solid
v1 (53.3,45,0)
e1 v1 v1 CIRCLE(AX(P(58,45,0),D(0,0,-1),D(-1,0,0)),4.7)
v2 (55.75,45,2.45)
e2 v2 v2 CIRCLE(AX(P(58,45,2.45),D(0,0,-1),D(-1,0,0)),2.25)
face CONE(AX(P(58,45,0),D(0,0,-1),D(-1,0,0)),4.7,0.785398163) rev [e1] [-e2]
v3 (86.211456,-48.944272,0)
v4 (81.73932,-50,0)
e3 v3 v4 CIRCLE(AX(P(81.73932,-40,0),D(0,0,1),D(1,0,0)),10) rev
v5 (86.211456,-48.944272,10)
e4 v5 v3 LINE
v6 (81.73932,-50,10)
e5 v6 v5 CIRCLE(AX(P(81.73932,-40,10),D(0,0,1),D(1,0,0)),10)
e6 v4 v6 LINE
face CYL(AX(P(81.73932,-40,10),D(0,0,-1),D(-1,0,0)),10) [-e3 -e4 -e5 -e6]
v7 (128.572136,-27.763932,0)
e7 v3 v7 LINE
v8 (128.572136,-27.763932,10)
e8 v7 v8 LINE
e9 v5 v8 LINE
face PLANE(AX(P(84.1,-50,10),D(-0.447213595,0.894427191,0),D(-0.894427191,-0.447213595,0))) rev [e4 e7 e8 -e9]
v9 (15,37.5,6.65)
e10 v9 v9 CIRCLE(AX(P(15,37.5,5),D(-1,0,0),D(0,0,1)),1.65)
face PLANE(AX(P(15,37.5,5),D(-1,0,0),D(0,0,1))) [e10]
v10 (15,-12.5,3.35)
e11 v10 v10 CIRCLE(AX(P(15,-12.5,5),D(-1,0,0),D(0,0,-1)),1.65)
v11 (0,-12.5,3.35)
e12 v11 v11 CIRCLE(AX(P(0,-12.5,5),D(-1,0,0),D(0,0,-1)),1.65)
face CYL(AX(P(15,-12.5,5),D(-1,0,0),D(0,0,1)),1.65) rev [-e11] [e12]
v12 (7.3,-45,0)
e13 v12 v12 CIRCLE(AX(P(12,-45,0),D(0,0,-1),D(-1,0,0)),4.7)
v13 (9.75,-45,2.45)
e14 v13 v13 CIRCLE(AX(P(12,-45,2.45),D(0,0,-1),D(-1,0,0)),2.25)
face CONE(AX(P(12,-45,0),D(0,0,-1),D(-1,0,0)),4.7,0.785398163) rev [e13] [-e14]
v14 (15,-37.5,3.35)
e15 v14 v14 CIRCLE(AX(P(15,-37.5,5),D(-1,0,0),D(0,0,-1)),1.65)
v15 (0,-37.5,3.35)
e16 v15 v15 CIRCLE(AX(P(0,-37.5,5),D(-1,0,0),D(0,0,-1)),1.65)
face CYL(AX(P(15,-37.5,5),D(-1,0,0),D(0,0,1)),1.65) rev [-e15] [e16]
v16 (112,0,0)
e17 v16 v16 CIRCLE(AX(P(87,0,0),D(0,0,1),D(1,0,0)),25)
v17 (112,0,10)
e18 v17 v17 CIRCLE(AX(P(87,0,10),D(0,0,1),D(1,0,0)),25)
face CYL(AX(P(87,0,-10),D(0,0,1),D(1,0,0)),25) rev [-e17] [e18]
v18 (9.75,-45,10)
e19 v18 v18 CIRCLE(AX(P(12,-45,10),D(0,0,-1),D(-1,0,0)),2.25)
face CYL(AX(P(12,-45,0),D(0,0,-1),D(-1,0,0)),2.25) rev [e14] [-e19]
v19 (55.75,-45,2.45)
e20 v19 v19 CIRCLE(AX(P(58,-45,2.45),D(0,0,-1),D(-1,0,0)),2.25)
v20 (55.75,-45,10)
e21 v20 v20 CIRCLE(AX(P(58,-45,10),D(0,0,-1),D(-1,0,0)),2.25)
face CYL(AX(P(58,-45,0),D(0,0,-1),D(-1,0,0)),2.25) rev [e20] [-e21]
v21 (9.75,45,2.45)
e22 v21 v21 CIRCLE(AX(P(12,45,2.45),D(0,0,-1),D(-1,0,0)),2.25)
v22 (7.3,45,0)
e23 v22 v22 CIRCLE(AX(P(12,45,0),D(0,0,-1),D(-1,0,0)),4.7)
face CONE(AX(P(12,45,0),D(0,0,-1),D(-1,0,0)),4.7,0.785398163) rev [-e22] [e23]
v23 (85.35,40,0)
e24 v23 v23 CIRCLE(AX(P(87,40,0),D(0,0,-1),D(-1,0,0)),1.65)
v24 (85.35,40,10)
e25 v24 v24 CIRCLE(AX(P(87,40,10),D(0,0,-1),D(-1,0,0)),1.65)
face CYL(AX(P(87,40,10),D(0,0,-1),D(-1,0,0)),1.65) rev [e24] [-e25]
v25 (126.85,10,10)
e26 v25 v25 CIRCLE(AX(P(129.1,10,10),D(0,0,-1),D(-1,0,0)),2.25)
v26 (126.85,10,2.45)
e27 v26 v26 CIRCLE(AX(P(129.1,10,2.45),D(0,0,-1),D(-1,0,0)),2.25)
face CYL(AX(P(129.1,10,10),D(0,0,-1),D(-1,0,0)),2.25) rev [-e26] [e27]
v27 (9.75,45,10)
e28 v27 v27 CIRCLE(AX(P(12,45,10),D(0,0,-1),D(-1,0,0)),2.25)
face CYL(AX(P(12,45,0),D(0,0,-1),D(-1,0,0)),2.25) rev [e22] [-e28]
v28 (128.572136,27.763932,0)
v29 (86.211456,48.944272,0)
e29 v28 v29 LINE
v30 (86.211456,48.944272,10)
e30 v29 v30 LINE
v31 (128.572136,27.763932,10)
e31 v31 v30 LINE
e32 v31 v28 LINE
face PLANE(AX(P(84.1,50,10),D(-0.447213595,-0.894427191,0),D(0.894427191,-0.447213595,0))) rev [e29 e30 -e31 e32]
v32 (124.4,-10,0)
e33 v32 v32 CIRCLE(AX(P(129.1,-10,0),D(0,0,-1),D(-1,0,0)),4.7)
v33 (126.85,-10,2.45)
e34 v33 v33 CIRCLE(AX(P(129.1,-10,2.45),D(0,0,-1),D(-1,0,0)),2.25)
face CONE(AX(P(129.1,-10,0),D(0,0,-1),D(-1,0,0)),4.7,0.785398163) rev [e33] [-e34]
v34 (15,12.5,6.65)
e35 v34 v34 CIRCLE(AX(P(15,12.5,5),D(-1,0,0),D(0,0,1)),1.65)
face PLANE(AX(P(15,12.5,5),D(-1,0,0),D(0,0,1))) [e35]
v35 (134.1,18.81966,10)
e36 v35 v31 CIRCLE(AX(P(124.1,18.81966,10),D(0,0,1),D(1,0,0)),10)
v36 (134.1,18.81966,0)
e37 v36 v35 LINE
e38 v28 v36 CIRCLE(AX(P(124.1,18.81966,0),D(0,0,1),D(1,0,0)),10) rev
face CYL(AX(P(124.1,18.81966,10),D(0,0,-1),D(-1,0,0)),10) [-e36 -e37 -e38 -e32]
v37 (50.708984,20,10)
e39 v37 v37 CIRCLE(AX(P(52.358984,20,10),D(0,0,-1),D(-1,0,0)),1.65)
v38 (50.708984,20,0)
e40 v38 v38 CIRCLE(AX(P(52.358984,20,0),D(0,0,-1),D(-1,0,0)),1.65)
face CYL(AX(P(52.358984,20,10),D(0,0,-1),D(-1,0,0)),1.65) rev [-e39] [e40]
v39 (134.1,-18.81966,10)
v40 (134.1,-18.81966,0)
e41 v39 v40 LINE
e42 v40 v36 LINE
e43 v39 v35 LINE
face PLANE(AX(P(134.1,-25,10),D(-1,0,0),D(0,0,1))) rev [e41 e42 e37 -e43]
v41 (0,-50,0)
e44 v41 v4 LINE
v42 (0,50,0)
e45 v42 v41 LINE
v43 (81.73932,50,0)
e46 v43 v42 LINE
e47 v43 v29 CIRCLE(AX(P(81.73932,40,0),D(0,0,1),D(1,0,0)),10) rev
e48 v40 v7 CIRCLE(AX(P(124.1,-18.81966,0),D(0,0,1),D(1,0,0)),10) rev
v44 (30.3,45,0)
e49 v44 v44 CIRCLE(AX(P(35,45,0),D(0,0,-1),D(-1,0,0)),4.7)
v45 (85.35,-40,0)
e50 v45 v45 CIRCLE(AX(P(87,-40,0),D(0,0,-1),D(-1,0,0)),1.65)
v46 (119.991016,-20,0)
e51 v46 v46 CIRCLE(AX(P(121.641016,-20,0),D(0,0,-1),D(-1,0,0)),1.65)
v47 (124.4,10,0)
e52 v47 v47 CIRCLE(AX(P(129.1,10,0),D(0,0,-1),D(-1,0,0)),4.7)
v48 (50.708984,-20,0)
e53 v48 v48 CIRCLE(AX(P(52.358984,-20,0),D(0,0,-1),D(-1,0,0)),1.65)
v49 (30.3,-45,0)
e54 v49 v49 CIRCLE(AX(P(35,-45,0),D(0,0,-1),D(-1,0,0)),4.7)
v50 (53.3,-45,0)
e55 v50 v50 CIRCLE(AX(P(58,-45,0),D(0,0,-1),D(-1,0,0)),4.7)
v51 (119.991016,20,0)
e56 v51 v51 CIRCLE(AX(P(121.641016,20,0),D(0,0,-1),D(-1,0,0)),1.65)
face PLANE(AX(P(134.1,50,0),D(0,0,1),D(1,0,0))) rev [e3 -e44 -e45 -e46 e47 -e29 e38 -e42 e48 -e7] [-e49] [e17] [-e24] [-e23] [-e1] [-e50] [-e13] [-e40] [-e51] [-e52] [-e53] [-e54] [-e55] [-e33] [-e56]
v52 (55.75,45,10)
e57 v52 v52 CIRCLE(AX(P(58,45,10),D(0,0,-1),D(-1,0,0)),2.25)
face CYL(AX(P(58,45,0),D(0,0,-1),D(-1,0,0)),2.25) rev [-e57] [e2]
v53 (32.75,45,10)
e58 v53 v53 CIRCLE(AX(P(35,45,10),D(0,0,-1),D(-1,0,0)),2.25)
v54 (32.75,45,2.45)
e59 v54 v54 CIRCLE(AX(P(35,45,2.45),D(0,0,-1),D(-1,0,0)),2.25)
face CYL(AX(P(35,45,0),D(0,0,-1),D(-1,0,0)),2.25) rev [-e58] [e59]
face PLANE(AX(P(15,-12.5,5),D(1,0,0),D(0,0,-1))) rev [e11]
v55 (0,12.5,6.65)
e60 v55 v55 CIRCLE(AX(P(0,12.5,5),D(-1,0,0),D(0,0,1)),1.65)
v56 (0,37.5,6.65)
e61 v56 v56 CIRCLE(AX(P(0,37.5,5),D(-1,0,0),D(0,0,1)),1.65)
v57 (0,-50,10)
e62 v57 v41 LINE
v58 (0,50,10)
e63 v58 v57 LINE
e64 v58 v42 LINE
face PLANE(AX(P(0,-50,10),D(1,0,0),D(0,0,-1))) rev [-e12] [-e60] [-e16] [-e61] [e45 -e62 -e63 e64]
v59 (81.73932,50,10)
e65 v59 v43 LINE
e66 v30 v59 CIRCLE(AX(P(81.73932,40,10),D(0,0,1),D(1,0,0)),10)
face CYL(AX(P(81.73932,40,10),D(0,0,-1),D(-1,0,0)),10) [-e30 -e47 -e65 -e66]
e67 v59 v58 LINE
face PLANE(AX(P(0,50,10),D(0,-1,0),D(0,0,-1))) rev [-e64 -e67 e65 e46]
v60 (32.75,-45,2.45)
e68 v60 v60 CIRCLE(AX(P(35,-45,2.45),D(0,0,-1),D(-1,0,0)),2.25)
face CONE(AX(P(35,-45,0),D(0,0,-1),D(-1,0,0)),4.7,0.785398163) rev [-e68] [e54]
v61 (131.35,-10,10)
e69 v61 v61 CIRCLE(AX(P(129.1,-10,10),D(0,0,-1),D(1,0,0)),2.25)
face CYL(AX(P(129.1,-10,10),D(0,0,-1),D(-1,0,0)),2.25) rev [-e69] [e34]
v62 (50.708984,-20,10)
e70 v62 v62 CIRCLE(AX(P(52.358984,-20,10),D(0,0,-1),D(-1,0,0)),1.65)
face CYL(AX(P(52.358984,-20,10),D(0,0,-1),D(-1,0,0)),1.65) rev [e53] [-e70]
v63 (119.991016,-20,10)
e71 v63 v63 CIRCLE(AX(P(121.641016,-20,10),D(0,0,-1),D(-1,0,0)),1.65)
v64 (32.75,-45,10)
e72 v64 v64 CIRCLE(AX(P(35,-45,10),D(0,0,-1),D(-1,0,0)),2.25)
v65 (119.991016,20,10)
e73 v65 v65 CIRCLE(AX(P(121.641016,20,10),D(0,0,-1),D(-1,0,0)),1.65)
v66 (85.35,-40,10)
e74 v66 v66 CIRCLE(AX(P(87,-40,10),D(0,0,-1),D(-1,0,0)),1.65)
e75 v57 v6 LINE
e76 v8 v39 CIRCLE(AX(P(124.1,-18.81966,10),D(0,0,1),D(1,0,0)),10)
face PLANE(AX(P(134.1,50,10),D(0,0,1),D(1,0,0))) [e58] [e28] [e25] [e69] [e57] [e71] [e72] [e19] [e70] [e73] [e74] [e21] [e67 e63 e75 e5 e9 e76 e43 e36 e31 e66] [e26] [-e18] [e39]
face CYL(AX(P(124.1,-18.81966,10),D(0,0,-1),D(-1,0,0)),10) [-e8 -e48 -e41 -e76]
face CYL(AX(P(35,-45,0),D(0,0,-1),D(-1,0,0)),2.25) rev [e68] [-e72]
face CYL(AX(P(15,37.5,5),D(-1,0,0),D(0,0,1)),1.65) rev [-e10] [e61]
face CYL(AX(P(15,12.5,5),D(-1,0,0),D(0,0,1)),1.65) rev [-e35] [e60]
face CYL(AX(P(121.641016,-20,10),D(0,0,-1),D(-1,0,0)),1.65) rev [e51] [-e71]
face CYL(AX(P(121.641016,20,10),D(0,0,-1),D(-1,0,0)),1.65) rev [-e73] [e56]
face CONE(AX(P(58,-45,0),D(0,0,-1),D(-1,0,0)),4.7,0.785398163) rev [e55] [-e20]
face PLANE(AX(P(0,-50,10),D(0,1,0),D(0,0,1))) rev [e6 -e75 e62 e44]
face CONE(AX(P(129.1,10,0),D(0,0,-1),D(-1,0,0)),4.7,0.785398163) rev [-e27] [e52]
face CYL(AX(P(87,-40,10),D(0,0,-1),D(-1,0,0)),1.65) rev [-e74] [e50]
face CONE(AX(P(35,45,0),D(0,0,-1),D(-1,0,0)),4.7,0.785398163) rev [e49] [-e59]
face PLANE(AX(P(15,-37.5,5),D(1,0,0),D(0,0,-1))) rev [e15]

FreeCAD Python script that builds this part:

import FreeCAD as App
import Part
import Sketcher
from FreeCAD import Vector
Q = App.Units.Quantity


def edges_at(feature, points):
    """Names of the edges that pass closest to the given points."""
    edges = feature.Shape.Edges
    near = lambda p: min(range(len(edges)), key=lambda i: edges[i].distToShape(Part.Vertex(*p))[0])
    return sorted({f"Edge{near(p) + 1}" for p in points})

doc = App.newDocument("Part")
body = doc.addObject("PartDesign::Body", "Body")

# Sketch on XY plane
sketch1 = doc.addObject("Sketcher::SketchObject", "Sketch")
body.addObject(sketch1)
sketch1.AttachmentSupport = (doc.XY_Plane, [""])
sketch1.MapMode = "FlatFace"
sketch1.addGeometry(Part.LineSegment(Vector(0, -50, 0), Vector(84, -50, 0)), False)
sketch1.addGeometry(Part.LineSegment(Vector(84, -50, 0), Vector(134, -25, 0)), False)
sketch1.addGeometry(Part.LineSegment(Vector(134, -25, 0), Vector(134, 25, 0)), False)
sketch1.addGeometry(Part.LineSegment(Vector(134, 25, 0), Vector(84, 50, 0)), False)
sketch1.addGeometry(Part.LineSegment(Vector(84, 50, 0), Vector(0, 50, 0)), False)
sketch1.addGeometry(Part.LineSegment(Vector(0, 50, 0), Vector(0, -50, 0)), False)
sketch1.addConstraint(Sketcher.Constraint("Coincident", 0, 2, 1, 1))
sketch1.addConstraint(Sketcher.Constraint("Coincident", 1, 2, 2, 1))
sketch1.addConstraint(Sketcher.Constraint("Coincident", 2, 2, 3, 1))
sketch1.addConstraint(Sketcher.Constraint("Coincident", 3, 2, 4, 1))
sketch1.addConstraint(Sketcher.Constraint("Coincident", 4, 2, 5, 1))
sketch1.addConstraint(Sketcher.Constraint("Coincident", 5, 2, 0, 1))
sketch1.addConstraint(Sketcher.Constraint("Horizontal", 0))
sketch1.addConstraint(Sketcher.Constraint("Vertical", 2))
sketch1.addConstraint(Sketcher.Constraint("Horizontal", 4))
sketch1.addConstraint(Sketcher.Constraint("Vertical", 5))
sketch1.addConstraint(Sketcher.Constraint("Symmetric", 4, 2, 5, 2, -1, 1))
sketch1.addConstraint(Sketcher.Constraint("Vertical", 0, 2, 3, 2))
sketch1.addConstraint(Sketcher.Constraint("Equal", 1, 3))
sketch1.addConstraint(Sketcher.Constraint("DistanceY", 2, 1, 2, 2, Q("50 mm")))
sketch1.addConstraint(Sketcher.Constraint("DistanceY", 5, 2, 5, 1, Q("100 mm")))
sketch1.addConstraint(Sketcher.Constraint("DistanceX", 0, 1, 0, 2, Q("84.1 mm")))
sketch1.addConstraint(Sketcher.Constraint("DistanceX", 0, 2, 1, 2, Q("50 mm")))
pad1 = doc.addObject("PartDesign::Pad", "Pad")
body.addObject(pad1)
pad1.Profile = sketch1
pad1.Length = 10

# Sketch on XY plane
sketch2 = doc.addObject("Sketcher::SketchObject", "Sketch001")
body.addObject(sketch2)
sketch2.AttachmentSupport = (doc.XY_Plane, [""])
sketch2.MapMode = "FlatFace"
sketch2.AttachmentOffset = App.Placement(Vector(0, 0, 10), App.Rotation())
sketch2.addGeometry(Part.Circle(Vector(87, 0, 0), Vector(0, 0, 1), 25), False)
sketch2.addConstraint(Sketcher.Constraint("PointOnObject", 0, 3, -1))
sketch2.addConstraint(Sketcher.Constraint("Diameter", 0, Q("50 mm")))
sketch2.addConstraint(Sketcher.Constraint("DistanceX", -1, 1, 0, 3, Q("87 mm")))
pocket1 = doc.addObject("PartDesign::Pocket", "Pocket")
body.addObject(pocket1)
pocket1.Profile = sketch2
pocket1.Length = 20

# Sketch on YZ plane
sketch3 = doc.addObject("Sketcher::SketchObject", "Sketch002")
body.addObject(sketch3)
sketch3.AttachmentSupport = (doc.YZ_Plane, [""])
sketch3.MapMode = "FlatFace"
sketch3.addGeometry(Part.Circle(Vector(37.5, 5, 0), Vector(0, 0, 1), 1.6), False)
sketch3.addGeometry(Part.Circle(Vector(12.5, 5, 0), Vector(0, 0, 1), 1.6), False)
sketch3.addGeometry(Part.Circle(Vector(-37.5, 5, 0), Vector(0, 0, 1), 1.6), False)
sketch3.addGeometry(Part.Circle(Vector(-12.5, 5, 0), Vector(0, 0, 1), 1.6), False)
sketch3.addConstraint(Sketcher.Constraint("Equal", 0, 1))
sketch3.addConstraint(Sketcher.Constraint("Equal", 1, 2))
sketch3.addConstraint(Sketcher.Constraint("Equal", 2, 3))
sketch3.addConstraint(Sketcher.Constraint("Symmetric", 0, 3, 2, 3, -2))
sketch3.addConstraint(Sketcher.Constraint("Symmetric", 1, 3, 3, 3, -2))
sketch3.addConstraint(Sketcher.Constraint("Horizontal", 0, 3, 1, 3))
sketch3.addConstraint(Sketcher.Constraint("Diameter", 0, Q("3.3 mm")))
sketch3.addConstraint(Sketcher.Constraint("DistanceY", -1, 1, 0, 3, Q("5 mm")))
sketch3.addConstraint(Sketcher.Constraint("DistanceX", 1, 3, 0, 3, Q("25 mm")))
sketch3.addConstraint(Sketcher.Constraint("DistanceX", 2, 3, 1, 3, Q("50 mm")))
pocket2 = doc.addObject("PartDesign::Pocket", "Pocket001")
body.addObject(pocket2)
pocket2.Profile = sketch3
pocket2.Length = 15
pocket2.Reversed = True

# Sketch on XY plane
sketch4 = doc.addObject("Sketcher::SketchObject", "Sketch003")
body.addObject(sketch4)
sketch4.AttachmentSupport = (doc.XY_Plane, [""])
sketch4.MapMode = "FlatFace"
sketch4.addGeometry(Part.Circle(Vector(12, 45, 0), Vector(0, 0, 1), 1.5), False)
sketch4.addConstraint(Sketcher.Constraint("Diameter", 0, Q("3 mm")))
sketch4.addConstraint(Sketcher.Constraint("DistanceX", -1, 1, 0, 3, Q("12 mm")))
sketch4.addConstraint(Sketcher.Constraint("DistanceY", -1, 1, 0, 3, Q("45 mm")))
pocket3 = doc.addObject("PartDesign::Pocket", "Pocket002")
body.addObject(pocket3)
pocket3.Profile = sketch4
pocket3.Type = "UpToFirst"
pocket3.Reversed = True

# Sketch on XY plane
sketch5 = doc.addObject("Sketcher::SketchObject", "Sketch004")
body.addObject(sketch5)
sketch5.AttachmentSupport = (doc.XY_Plane, [""])
sketch5.MapMode = "FlatFace"
sketch5.addGeometry(Part.Circle(Vector(35, 45, 0), Vector(0, 0, 1), 1.5), False)
sketch5.addConstraint(Sketcher.Constraint("Diameter", 0, Q("3 mm")))
sketch5.addConstraint(Sketcher.Constraint("DistanceX", -1, 1, 0, 3, Q("35 mm")))
sketch5.addConstraint(Sketcher.Constraint("DistanceY", -1, 1, 0, 3, Q("45 mm")))
pocket4 = doc.addObject("PartDesign::Pocket", "Pocket003")
body.addObject(pocket4)
pocket4.Profile = sketch5
pocket4.Type = "UpToFirst"
pocket4.Reversed = True

# Sketch on XY plane
sketch6 = doc.addObject("Sketcher::SketchObject", "Sketch005")
body.addObject(sketch6)
sketch6.AttachmentSupport = (doc.XY_Plane, [""])
sketch6.MapMode = "FlatFace"
sketch6.addGeometry(Part.Circle(Vector(58, 45, 0), Vector(0, 0, 1), 1.5), False)
sketch6.addConstraint(Sketcher.Constraint("Diameter", 0, Q("3 mm")))
sketch6.addConstraint(Sketcher.Constraint("DistanceX", -1, 1, 0, 3, Q("58 mm")))
sketch6.addConstraint(Sketcher.Constraint("DistanceY", -1, 1, 0, 3, Q("45 mm")))
pocket5 = doc.addObject("PartDesign::Pocket", "Pocket004")
body.addObject(pocket5)
pocket5.Profile = sketch6
pocket5.Type = "UpToFirst"
pocket5.Reversed = True

# Sketch on XY plane
sketch7 = doc.addObject("Sketcher::SketchObject", "Sketch006")
body.addObject(sketch7)
sketch7.AttachmentSupport = (doc.XY_Plane, [""])
sketch7.MapMode = "FlatFace"
sketch7.addGeometry(Part.Circle(Vector(58, -45, 0), Vector(0, 0, 1), 1.5), False)
sketch7.addConstraint(Sketcher.Constraint("Diameter", 0, Q("3 mm")))
sketch7.addConstraint(Sketcher.Constraint("DistanceX", -1, 1, 0, 3, Q("58 mm")))
sketch7.addConstraint(Sketcher.Constraint("DistanceY", 0, 3, -1, 1, Q("45 mm")))
pocket6 = doc.addObject("PartDesign::Pocket", "Pocket005")
body.addObject(pocket6)
pocket6.Profile = sketch7
pocket6.Type = "UpToFirst"
pocket6.Reversed = True

# Sketch on XY plane
sketch8 = doc.addObject("Sketcher::SketchObject", "Sketch007")
body.addObject(sketch8)
sketch8.AttachmentSupport = (doc.XY_Plane, [""])
sketch8.MapMode = "FlatFace"
sketch8.addGeometry(Part.Circle(Vector(35, -45, 0), Vector(0, 0, 1), 1.5), False)
sketch8.addConstraint(Sketcher.Constraint("Diameter", 0, Q("3 mm")))
sketch8.addConstraint(Sketcher.Constraint("DistanceX", -1, 1, 0, 3, Q("35 mm")))
sketch8.addConstraint(Sketcher.Constraint("DistanceY", 0, 3, -1, 1, Q("45 mm")))
pocket7 = doc.addObject("PartDesign::Pocket", "Pocket006")
body.addObject(pocket7)
pocket7.Profile = sketch8
pocket7.Type = "UpToFirst"
pocket7.Reversed = True

# Sketch on XY plane
sketch9 = doc.addObject("Sketcher::SketchObject", "Sketch008")
body.addObject(sketch9)
sketch9.AttachmentSupport = (doc.XY_Plane, [""])
sketch9.MapMode = "FlatFace"
sketch9.addGeometry(Part.Circle(Vector(12, -45, 0), Vector(0, 0, 1), 1.5), False)
sketch9.addConstraint(Sketcher.Constraint("Diameter", 0, Q("3 mm")))
sketch9.addConstraint(Sketcher.Constraint("DistanceX", -1, 1, 0, 3, Q("12 mm")))
sketch9.addConstraint(Sketcher.Constraint("DistanceY", 0, 3, -1, 1, Q("45 mm")))
pocket8 = doc.addObject("PartDesign::Pocket", "Pocket007")
body.addObject(pocket8)
pocket8.Profile = sketch9
pocket8.Type = "UpToFirst"
pocket8.Reversed = True

# Sketch on XY plane
sketch10 = doc.addObject("Sketcher::SketchObject", "Sketch009")
body.addObject(sketch10)
sketch10.AttachmentSupport = (doc.XY_Plane, [""])
sketch10.MapMode = "FlatFace"
sketch10.addGeometry(Part.Circle(Vector(12, 45, 0), Vector(0, 0, 1), 2.2), False)
sketch10.addGeometry(Part.Circle(Vector(35, 45, 0), Vector(0, 0, 1), 2.2), False)
sketch10.addGeometry(Part.Circle(Vector(58, 45, 0), Vector(0, 0, 1), 2.2), False)
sketch10.addGeometry(Part.Circle(Vector(12, -45, 0), Vector(0, 0, 1), 2.2), False)
sketch10.addGeometry(Part.Circle(Vector(35, -45, 0), Vector(0, 0, 1), 2.2), False)
sketch10.addGeometry(Part.Circle(Vector(58, -45, 0), Vector(0, 0, 1), 2.2), False)
sketch10.addConstraint(Sketcher.Constraint("Equal", 0, 1))
sketch10.addConstraint(Sketcher.Constraint("Equal", 1, 2))
sketch10.addConstraint(Sketcher.Constraint("Equal", 2, 3))
sketch10.addConstraint(Sketcher.Constraint("Equal", 3, 4))
sketch10.addConstraint(Sketcher.Constraint("Equal", 4, 5))
sketch10.addConstraint(Sketcher.Constraint("Symmetric", 0, 3, 3, 3, -1))
sketch10.addConstraint(Sketcher.Constraint("Symmetric", 1, 3, 4, 3, -1))
sketch10.addConstraint(Sketcher.Constraint("Symmetric", 2, 3, 5, 3, -1))
sketch10.addConstraint(Sketcher.Constraint("Horizontal", 0, 3, 1, 3))
sketch10.addConstraint(Sketcher.Constraint("Horizontal", 1, 3, 2, 3))
sketch10.addConstraint(Sketcher.Constraint("Diameter", 0, Q("4.5 mm")))
sketch10.addConstraint(Sketcher.Constraint("DistanceX", -1, 1, 0, 3, Q("12 mm")))
sketch10.addConstraint(Sketcher.Constraint("DistanceY", -1, 1, 0, 3, Q("45 mm")))
sketch10.addConstraint(Sketcher.Constraint("DistanceX", -1, 1, 1, 3, Q("35 mm")))
sketch10.addConstraint(Sketcher.Constraint("DistanceX", -1, 1, 2, 3, Q("58 mm")))
doc.recompute()
hole = doc.addObject("PartDesign::Hole", "Hole")
body.addObject(hole)
hole.Profile = sketch10
hole.ThreadType = "None"
hole.Diameter = 4.5
hole.DepthType = "ThroughAll"
hole.HoleCutType = "Countersink"
hole.HoleCutDiameter = 9.4
hole.HoleCutCountersinkAngle = 90
hole.Reversed = True

# Sketch on XY plane
sketch11 = doc.addObject("Sketcher::SketchObject", "Sketch010")
body.addObject(sketch11)
sketch11.AttachmentSupport = (doc.XY_Plane, [""])
sketch11.MapMode = "FlatFace"
sketch11.addGeometry(Part.Circle(Vector(87, 40, 0), Vector(0, 0, 1), 1.6), False)
sketch11.addGeometry(Part.Circle(Vector(52.4, 20, 0), Vector(0, 0, 1), 1.6), False)
sketch11.addGeometry(Part.Circle(Vector(52.4, -20, 0), Vector(0, 0, 1), 1.6), False)
sketch11.addGeometry(Part.Circle(Vector(87, -40, 0), Vector(0, 0, 1), 1.6), False)
sketch11.addGeometry(Part.Circle(Vector(121.6, -20, 0), Vector(0, 0, 1), 1.6), False)
sketch11.addGeometry(Part.Circle(Vector(121.6, 20, 0), Vector(0, 0, 1), 1.6), False)
sketch11.addConstraint(Sketcher.Constraint("Equal", 0, 1))
sketch11.addConstraint(Sketcher.Constraint("Equal", 1, 2))
sketch11.addConstraint(Sketcher.Constraint("Equal", 2, 3))
sketch11.addConstraint(Sketcher.Constraint("Equal", 3, 4))
sketch11.addConstraint(Sketcher.Constraint("Equal", 4, 5))
sketch11.addConstraint(Sketcher.Constraint("Symmetric", 1, 3, 2, 3, -1))
sketch11.addConstraint(Sketcher.Constraint("Symmetric", 0, 3, 3, 3, -1))
sketch11.addConstraint(Sketcher.Constraint("Symmetric", 4, 3, 5, 3, -1))
sketch11.addConstraint(Sketcher.Constraint("Horizontal", 2, 3, 4, 3))
sketch11.addConstraint(Sketcher.Constraint("Diameter", 0, Q("3.3 mm")))
sketch11.addConstraint(Sketcher.Constraint("DistanceX", -1, 1, 0, 3, Q("87 mm")))
sketch11.addConstraint(Sketcher.Constraint("DistanceY", -1, 1, 0, 3, Q("40 mm")))
sketch11.addConstraint(Sketcher.Constraint("DistanceY", -1, 1, 1, 3, Q("20 mm")))
sketch11.addConstraint(Sketcher.Constraint("DistanceX", -1, 1, 1, 3, Q("52.358984 mm")))
sketch11.addConstraint(Sketcher.Constraint("DistanceX", -1, 1, 4, 3, Q("121.641016 mm")))
pocket9 = doc.addObject("PartDesign::Pocket", "Pocket008")
body.addObject(pocket9)
pocket9.Profile = sketch11
pocket9.Length = 10
pocket9.Reversed = True
doc.recompute()

fillet = doc.addObject("PartDesign::Fillet", "Fillet")
body.addObject(fillet)
fillet.Base = (pocket9, edges_at(pocket9, [
    (84.1, 50, 5),
    (134.1, 25, 5),
    (134.1, -25, 5),
    (84.1, -50, 5),
]))
fillet.Radius = 10

# Sketch on XY plane
sketch12 = doc.addObject("Sketcher::SketchObject", "Sketch011")
body.addObject(sketch12)
sketch12.AttachmentSupport = (doc.XY_Plane, [""])
sketch12.MapMode = "FlatFace"
sketch12.addGeometry(Part.Circle(Vector(129.1, 10, 0), Vector(0, 0, 1), 2.2), False)
sketch12.addGeometry(Part.Circle(Vector(129.1, -10, 0), Vector(0, 0, 1), 2.2), False)
sketch12.addConstraint(Sketcher.Constraint("Equal", 0, 1))
sketch12.addConstraint(Sketcher.Constraint("Symmetric", 0, 3, 1, 3, -1))
sketch12.addConstraint(Sketcher.Constraint("Diameter", 0, Q("4.5 mm")))
sketch12.addConstraint(Sketcher.Constraint("DistanceY", -1, 1, 0, 3, Q("10 mm")))
sketch12.addConstraint(Sketcher.Constraint("DistanceX", -1, 1, 0, 3, Q("129.1 mm")))
pocket10 = doc.addObject("PartDesign::Pocket", "Pocket009")
body.addObject(pocket10)
pocket10.Profile = sketch12
pocket10.Length = 10
pocket10.Reversed = True

# Sketch on XY plane
sketch13 = doc.addObject("Sketcher::SketchObject", "Sketch012")
body.addObject(sketch13)
sketch13.AttachmentSupport = (doc.XY_Plane, [""])
sketch13.MapMode = "FlatFace"
sketch13.addGeometry(Part.Circle(Vector(129.1, 10, 0), Vector(0, 0, 1), 2.2), False)
sketch13.addGeometry(Part.Circle(Vector(129.1, -10, 0), Vector(0, 0, 1), 2.2), False)
sketch13.addConstraint(Sketcher.Constraint("Equal", 0, 1))
sketch13.addConstraint(Sketcher.Constraint("Symmetric", 0, 3, 1, 3, -1))
sketch13.addConstraint(Sketcher.Constraint("Diameter", 0, Q("4.5 mm")))
sketch13.addConstraint(Sketcher.Constraint("DistanceY", -1, 1, 0, 3, Q("10 mm")))
sketch13.addConstraint(Sketcher.Constraint("DistanceX", -1, 1, 0, 3, Q("129.1 mm")))
doc.recompute()
hole2 = doc.addObject("PartDesign::Hole", "Hole001")
body.addObject(hole2)
hole2.Profile = sketch13
hole2.ThreadType = "None"
hole2.Diameter = 4.5
hole2.DepthType = "ThroughAll"
hole2.HoleCutType = "Countersink"
hole2.HoleCutDiameter = 9.4
hole2.HoleCutCountersinkAngle = 90
hole2.Reversed = True

doc.recompute()
